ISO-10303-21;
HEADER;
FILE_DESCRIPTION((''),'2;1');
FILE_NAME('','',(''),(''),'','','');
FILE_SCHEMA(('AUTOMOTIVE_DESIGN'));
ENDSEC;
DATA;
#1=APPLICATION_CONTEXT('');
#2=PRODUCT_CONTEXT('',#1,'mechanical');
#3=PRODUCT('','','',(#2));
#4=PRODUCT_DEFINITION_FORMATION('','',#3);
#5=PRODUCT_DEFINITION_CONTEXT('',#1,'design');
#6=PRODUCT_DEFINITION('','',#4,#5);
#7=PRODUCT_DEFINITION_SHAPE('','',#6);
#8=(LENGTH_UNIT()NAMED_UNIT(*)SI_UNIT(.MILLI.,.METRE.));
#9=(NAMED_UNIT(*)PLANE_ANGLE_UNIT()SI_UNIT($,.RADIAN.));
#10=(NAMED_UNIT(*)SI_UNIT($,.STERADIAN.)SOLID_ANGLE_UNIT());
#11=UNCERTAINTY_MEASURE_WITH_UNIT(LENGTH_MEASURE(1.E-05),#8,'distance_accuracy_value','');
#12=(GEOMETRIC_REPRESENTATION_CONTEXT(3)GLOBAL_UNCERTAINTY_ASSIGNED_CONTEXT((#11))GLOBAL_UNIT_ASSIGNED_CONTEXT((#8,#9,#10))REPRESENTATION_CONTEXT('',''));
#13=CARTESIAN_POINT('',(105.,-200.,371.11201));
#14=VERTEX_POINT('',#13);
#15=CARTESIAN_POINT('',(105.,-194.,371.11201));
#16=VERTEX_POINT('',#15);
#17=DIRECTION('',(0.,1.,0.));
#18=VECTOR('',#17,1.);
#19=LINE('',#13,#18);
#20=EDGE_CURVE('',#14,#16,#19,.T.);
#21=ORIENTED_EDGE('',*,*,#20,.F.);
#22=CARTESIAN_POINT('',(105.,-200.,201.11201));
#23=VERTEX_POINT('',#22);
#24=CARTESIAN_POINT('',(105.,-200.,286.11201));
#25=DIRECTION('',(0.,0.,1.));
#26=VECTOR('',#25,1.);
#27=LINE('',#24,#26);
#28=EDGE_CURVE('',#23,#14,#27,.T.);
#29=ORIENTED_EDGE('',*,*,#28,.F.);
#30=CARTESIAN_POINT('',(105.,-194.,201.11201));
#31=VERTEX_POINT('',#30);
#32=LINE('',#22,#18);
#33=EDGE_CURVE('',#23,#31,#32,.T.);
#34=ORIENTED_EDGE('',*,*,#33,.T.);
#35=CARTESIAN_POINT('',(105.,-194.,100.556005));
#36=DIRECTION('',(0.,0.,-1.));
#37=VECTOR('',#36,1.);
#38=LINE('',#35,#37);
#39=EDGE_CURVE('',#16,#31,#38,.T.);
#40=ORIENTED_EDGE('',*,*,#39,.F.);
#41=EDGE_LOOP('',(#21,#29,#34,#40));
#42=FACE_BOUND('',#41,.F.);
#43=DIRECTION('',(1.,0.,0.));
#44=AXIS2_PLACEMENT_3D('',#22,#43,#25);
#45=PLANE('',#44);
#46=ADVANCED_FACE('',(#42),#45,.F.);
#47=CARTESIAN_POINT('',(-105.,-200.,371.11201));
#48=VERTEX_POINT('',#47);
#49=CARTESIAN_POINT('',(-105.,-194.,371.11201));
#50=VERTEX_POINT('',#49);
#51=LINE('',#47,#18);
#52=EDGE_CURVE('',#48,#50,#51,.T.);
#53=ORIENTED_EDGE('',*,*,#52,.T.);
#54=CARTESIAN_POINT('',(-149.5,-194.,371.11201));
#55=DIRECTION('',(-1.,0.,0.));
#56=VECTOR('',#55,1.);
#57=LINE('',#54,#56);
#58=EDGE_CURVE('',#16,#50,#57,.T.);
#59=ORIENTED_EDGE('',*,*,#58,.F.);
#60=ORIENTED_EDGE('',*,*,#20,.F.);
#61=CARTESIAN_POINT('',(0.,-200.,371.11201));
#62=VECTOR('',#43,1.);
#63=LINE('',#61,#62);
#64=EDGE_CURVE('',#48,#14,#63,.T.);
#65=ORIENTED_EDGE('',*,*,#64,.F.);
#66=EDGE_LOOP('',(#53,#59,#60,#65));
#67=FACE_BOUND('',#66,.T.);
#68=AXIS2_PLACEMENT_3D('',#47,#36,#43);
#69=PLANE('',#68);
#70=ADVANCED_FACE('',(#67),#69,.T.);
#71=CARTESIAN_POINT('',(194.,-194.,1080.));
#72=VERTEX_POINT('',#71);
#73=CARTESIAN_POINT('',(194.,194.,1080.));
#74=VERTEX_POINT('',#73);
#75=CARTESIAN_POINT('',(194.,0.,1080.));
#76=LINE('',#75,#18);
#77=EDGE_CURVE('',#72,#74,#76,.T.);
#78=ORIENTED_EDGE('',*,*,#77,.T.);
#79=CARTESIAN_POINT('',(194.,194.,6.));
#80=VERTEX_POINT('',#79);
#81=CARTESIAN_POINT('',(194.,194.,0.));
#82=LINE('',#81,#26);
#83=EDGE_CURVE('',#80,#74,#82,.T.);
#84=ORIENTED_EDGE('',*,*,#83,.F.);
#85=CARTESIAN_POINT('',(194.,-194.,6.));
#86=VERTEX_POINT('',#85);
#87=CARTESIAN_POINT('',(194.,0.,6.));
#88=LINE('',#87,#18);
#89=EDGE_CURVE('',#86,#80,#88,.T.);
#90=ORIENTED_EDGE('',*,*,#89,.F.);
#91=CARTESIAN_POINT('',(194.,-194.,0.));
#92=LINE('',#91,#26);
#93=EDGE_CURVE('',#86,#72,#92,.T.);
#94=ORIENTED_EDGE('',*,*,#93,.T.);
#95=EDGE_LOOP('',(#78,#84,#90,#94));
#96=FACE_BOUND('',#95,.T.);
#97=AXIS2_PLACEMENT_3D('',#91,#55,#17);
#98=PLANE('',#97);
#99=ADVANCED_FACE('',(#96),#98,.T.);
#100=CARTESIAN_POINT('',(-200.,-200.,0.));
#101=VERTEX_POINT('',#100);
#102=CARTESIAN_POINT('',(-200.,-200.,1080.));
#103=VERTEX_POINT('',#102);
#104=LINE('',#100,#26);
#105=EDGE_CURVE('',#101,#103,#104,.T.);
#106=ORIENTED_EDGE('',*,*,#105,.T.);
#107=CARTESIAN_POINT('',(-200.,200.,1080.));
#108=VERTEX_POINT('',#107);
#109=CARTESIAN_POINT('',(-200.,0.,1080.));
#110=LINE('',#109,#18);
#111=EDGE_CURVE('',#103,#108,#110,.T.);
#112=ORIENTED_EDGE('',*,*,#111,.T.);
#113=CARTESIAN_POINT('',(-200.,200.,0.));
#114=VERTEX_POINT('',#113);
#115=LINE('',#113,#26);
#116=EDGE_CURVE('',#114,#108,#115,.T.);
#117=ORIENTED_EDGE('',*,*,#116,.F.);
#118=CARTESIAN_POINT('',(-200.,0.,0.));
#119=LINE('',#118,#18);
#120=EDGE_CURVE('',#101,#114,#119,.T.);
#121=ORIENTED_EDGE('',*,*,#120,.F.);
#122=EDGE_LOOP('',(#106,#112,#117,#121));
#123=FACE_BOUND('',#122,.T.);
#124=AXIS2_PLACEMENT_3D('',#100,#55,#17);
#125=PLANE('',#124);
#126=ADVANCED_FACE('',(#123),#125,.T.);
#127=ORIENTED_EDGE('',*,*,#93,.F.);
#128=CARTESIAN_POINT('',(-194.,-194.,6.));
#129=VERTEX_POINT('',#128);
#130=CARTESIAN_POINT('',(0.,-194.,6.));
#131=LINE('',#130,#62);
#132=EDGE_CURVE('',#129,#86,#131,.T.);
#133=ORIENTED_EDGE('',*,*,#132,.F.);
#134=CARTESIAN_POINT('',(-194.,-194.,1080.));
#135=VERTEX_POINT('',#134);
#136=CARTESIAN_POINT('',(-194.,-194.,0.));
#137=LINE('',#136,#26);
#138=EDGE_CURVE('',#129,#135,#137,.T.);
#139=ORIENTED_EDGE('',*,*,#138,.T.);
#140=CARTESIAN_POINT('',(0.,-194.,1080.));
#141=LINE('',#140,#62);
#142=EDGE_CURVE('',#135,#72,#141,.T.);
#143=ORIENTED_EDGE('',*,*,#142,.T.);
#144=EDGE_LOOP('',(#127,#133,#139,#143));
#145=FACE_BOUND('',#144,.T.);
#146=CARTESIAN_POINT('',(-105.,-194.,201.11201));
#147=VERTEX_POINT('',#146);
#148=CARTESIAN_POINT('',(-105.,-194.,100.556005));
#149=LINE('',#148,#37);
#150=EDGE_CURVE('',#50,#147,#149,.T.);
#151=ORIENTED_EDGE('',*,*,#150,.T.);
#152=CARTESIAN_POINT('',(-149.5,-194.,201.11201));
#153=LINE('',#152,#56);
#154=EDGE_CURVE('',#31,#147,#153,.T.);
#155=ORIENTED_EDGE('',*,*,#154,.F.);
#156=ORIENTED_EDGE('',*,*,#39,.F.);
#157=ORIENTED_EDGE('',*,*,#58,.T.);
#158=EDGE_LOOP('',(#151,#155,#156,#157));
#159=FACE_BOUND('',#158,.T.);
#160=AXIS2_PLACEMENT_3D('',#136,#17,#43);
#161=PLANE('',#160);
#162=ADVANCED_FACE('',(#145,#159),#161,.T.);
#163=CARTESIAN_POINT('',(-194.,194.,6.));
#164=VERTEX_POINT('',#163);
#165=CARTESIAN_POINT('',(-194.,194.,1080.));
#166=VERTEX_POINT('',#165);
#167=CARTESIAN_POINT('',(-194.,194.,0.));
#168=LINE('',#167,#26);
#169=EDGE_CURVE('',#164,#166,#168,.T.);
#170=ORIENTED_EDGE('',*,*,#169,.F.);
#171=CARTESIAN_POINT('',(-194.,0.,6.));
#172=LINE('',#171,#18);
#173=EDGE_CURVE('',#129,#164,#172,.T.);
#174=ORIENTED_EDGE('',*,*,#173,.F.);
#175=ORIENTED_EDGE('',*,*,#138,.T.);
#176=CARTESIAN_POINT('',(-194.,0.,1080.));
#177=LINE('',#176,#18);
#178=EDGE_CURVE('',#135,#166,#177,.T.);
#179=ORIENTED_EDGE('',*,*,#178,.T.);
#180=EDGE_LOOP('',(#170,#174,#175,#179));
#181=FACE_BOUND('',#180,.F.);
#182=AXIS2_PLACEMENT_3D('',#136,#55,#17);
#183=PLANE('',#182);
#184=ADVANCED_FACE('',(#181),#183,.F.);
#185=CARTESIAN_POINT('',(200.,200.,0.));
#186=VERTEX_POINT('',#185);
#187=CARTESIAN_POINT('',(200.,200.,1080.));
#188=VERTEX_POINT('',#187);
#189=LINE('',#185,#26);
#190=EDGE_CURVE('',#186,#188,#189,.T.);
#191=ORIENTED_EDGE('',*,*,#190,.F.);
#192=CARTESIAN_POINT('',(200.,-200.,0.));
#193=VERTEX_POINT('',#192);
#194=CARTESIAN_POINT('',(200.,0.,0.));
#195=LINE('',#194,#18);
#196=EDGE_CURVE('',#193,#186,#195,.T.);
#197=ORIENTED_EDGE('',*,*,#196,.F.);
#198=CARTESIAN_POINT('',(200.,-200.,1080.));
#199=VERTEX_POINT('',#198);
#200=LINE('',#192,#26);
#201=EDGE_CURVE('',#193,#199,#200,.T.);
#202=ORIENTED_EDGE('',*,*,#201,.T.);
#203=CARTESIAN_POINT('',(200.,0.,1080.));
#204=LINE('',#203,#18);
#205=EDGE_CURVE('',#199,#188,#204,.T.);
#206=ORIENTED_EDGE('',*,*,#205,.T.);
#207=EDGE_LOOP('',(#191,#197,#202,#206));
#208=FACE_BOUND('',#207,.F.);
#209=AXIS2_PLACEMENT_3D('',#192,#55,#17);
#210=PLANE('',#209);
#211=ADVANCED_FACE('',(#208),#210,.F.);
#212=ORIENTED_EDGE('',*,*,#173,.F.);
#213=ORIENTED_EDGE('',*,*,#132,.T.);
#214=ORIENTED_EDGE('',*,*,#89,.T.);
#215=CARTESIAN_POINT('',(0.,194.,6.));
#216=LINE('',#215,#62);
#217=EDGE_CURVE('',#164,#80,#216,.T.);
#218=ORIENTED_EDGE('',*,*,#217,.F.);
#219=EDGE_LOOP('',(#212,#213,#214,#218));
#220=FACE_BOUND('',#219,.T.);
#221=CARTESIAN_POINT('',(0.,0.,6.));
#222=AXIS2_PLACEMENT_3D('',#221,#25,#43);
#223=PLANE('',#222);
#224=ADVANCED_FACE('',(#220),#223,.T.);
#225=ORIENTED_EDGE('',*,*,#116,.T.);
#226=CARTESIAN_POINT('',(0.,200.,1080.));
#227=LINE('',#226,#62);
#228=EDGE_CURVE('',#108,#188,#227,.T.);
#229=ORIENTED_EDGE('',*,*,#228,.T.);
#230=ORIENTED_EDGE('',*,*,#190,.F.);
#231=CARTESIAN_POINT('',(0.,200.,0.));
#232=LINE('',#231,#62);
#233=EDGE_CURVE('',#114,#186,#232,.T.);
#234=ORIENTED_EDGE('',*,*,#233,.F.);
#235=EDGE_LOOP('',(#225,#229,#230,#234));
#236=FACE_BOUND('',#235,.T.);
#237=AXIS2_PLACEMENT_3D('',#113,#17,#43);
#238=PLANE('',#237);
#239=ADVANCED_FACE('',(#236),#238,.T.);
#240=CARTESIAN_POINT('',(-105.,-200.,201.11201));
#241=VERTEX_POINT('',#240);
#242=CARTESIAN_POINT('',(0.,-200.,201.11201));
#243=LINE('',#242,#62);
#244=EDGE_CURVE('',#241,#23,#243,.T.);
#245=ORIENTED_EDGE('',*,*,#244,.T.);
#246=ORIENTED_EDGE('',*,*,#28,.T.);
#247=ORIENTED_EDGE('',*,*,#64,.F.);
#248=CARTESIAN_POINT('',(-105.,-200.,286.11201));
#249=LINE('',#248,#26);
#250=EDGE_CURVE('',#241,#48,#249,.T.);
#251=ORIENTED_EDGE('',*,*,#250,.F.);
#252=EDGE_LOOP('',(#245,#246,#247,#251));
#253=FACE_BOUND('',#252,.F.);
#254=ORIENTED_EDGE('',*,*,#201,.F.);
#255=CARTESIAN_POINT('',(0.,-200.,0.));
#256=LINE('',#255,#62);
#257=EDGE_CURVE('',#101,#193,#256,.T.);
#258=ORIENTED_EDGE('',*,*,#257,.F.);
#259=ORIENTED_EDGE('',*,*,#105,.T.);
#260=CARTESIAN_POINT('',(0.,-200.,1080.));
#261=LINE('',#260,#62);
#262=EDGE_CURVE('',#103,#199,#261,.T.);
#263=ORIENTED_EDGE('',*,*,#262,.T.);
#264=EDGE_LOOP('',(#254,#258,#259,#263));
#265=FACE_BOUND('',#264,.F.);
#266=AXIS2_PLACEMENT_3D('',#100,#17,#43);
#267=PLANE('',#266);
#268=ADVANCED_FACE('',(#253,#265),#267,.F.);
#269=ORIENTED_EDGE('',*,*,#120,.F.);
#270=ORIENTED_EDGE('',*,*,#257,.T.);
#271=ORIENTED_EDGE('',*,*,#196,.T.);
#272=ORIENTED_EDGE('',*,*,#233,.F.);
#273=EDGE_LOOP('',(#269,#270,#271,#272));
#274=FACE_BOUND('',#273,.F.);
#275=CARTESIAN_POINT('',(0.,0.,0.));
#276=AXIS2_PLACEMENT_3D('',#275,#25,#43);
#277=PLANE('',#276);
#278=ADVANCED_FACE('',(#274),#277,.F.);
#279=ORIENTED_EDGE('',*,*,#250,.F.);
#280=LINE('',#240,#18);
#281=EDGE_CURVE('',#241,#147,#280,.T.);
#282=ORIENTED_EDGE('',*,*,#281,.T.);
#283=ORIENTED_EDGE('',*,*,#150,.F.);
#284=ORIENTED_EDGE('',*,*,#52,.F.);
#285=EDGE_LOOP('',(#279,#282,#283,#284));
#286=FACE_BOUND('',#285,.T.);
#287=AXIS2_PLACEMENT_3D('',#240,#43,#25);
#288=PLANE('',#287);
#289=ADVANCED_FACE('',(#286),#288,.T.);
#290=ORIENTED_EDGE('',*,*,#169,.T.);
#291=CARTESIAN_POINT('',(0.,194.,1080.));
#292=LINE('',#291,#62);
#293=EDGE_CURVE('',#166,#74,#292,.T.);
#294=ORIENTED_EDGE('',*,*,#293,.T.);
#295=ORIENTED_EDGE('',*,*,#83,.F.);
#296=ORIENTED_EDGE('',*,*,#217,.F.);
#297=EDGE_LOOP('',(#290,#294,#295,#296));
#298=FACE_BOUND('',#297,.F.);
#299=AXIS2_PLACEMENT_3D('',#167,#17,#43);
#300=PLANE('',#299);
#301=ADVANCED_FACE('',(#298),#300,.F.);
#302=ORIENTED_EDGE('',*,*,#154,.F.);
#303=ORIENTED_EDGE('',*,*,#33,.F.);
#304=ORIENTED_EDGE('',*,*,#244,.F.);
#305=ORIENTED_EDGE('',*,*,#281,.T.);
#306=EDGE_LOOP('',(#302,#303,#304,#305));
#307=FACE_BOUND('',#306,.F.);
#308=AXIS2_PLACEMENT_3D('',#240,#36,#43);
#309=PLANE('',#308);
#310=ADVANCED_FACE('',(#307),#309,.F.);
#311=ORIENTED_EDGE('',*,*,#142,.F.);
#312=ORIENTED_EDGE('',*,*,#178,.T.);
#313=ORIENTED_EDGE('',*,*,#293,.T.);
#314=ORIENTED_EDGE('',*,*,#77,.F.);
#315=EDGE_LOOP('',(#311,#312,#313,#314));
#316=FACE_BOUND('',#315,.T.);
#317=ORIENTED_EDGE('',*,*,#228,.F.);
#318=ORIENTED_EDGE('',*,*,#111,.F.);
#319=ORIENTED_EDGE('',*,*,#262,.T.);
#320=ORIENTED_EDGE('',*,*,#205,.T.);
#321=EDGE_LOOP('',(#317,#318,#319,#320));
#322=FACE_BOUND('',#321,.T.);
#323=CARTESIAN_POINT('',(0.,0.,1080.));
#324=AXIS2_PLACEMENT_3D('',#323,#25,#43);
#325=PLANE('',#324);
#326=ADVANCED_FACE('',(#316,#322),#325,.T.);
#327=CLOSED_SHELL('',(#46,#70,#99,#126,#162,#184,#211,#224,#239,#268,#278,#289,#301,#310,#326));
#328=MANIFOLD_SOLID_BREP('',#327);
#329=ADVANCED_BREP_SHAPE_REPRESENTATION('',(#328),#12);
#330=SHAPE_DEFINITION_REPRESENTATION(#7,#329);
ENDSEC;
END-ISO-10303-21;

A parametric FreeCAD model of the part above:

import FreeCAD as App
import Part
import Sketcher
from FreeCAD import Vector

doc = App.newDocument("Part")
body = doc.addObject("PartDesign::Body", "Body")

# Sketch on XY plane
sketch1 = doc.addObject("Sketcher::SketchObject", "Sketch")
body.addObject(sketch1)
sketch1.AttachmentSupport = (doc.XY_Plane, [""])
sketch1.MapMode = "FlatFace"
sketch1.addGeometry(Part.LineSegment(Vector(-194, 194, 0), Vector(-194, -194, 0)), False)
sketch1.addGeometry(Part.LineSegment(Vector(-194, -194, 0), Vector(194, -194, 0)), False)
sketch1.addGeometry(Part.LineSegment(Vector(194, -194, 0), Vector(194, 194, 0)), False)
sketch1.addGeometry(Part.LineSegment(Vector(194, 194, 0), Vector(-194, 194, 0)), False)
sketch1.addConstraint(Sketcher.Constraint("Coincident", 0, 2, 1, 1))
sketch1.addConstraint(Sketcher.Constraint("Coincident", 1, 2, 2, 1))
sketch1.addConstraint(Sketcher.Constraint("Coincident", 2, 2, 3, 1))
sketch1.addConstraint(Sketcher.Constraint("Coincident", 3, 2, 0, 1))
sketch1.addConstraint(Sketcher.Constraint("Vertical", 0))
sketch1.addConstraint(Sketcher.Constraint("Horizontal", 1))
sketch1.addConstraint(Sketcher.Constraint("Vertical", 2))
sketch1.addConstraint(Sketcher.Constraint("Horizontal", 3))
sketch1.addConstraint(Sketcher.Constraint("Symmetric", 0, 2, 2, 2, -1, 1))
sketch1.addConstraint(Sketcher.Constraint("Equal", 3, 0))
sketch1.addConstraint(Sketcher.Constraint("DistanceX", 1, 1, 1, 2, 388.0))
pad1 = doc.addObject("PartDesign::Pad", "Pad")
body.addObject(pad1)
pad1.Profile = sketch1
pad1.Length = 6

# Sketch on XY plane
sketch2 = doc.addObject("Sketcher::SketchObject", "Sketch001")
body.addObject(sketch2)
sketch2.AttachmentSupport = (doc.XY_Plane, [""])
sketch2.MapMode = "FlatFace"
sketch2.addGeometry(Part.LineSegment(Vector(-200, 200, 0), Vector(-200, -200, 0)), False)
sketch2.addGeometry(Part.LineSegment(Vector(-200, -200, 0), Vector(200, -200, 0)), False)
sketch2.addGeometry(Part.LineSegment(Vector(200, -200, 0), Vector(200, 200, 0)), False)
sketch2.addGeometry(Part.LineSegment(Vector(200, 200, 0), Vector(-200, 200, 0)), False)
sketch2.addGeometry(Part.LineSegment(Vector(194, -194, 0), Vector(-194, -194, 0)), False)
sketch2.addGeometry(Part.LineSegment(Vector(-194, -194, 0), Vector(-194, 194, 0)), False)
sketch2.addGeometry(Part.LineSegment(Vector(-194, 194, 0), Vector(194, 194, 0)), False)
sketch2.addGeometry(Part.LineSegment(Vector(194, 194, 0), Vector(194, -194, 0)), False)
sketch2.addConstraint(Sketcher.Constraint("Coincident", 0, 2, 1, 1))
sketch2.addConstraint(Sketcher.Constraint("Coincident", 1, 2, 2, 1))
sketch2.addConstraint(Sketcher.Constraint("Coincident", 2, 2, 3, 1))
sketch2.addConstraint(Sketcher.Constraint("Coincident", 3, 2, 0, 1))
sketch2.addConstraint(Sketcher.Constraint("Coincident", 4, 2, 5, 1))
sketch2.addConstraint(Sketcher.Constraint("Coincident", 5, 2, 6, 1))
sketch2.addConstraint(Sketcher.Constraint("Coincident", 6, 2, 7, 1))
sketch2.addConstraint(Sketcher.Constraint("Coincident", 7, 2, 4, 1))
sketch2.addConstraint(Sketcher.Constraint("Vertical", 0))
sketch2.addConstraint(Sketcher.Constraint("Horizontal", 1))
sketch2.addConstraint(Sketcher.Constraint("Vertical", 2))
sketch2.addConstraint(Sketcher.Constraint("Horizontal", 3))
sketch2.addConstraint(Sketcher.Constraint("Horizontal", 4))
sketch2.addConstraint(Sketcher.Constraint("Vertical", 5))
sketch2.addConstraint(Sketcher.Constraint("Horizontal", 6))
sketch2.addConstraint(Sketcher.Constraint("Vertical", 7))
sketch2.addConstraint(Sketcher.Constraint("Symmetric", 0, 2, 2, 2, -1, 1))
sketch2.addConstraint(Sketcher.Constraint("Symmetric", 4, 2, 6, 2, -1, 1))
sketch2.addConstraint(Sketcher.Constraint("Equal", 3, 0))
sketch2.addConstraint(Sketcher.Constraint("Equal", 6, 5))
sketch2.addConstraint(Sketcher.Constraint("DistanceX", 1, 1, 1, 2, 400.0))
sketch2.addConstraint(Sketcher.Constraint("DistanceX", 4, 2, 4, 1, 388.0))
pad2 = doc.addObject("PartDesign::Pad", "Pad001")
body.addObject(pad2)
pad2.Profile = sketch2
pad2.Length = 1080

# Sketch on XZ plane
sketch3 = doc.addObject("Sketcher::SketchObject", "Sketch002")
body.addObject(sketch3)
sketch3.AttachmentSupport = (doc.XZ_Plane, [""])
sketch3.MapMode = "FlatFace"
sketch3.AttachmentOffset = App.Placement(Vector(0, 0, 200), App.Rotation())
sketch3.addGeometry(Part.LineSegment(Vector(-105, 371, 0), Vector(-105, 201, 0)), False)
sketch3.addGeometry(Part.LineSegment(Vector(-105, 201, 0), Vector(105, 201, 0)), False)
sketch3.addGeometry(Part.LineSegment(Vector(105, 201, 0), Vector(105, 371, 0)), False)
sketch3.addGeometry(Part.LineSegment(Vector(105, 371, 0), Vector(-105, 371, 0)), False)
sketch3.addConstraint(Sketcher.Constraint("Coincident", 0, 2, 1, 1))
sketch3.addConstraint(Sketcher.Constraint("Coincident", 1, 2, 2, 1))
sketch3.addConstraint(Sketcher.Constraint("Coincident", 2, 2, 3, 1))
sketch3.addConstraint(Sketcher.Constraint("Coincident", 3, 2, 0, 1))
sketch3.addConstraint(Sketcher.Constraint("Vertical", 0))
sketch3.addConstraint(Sketcher.Constraint("Horizontal", 1))
sketch3.addConstraint(Sketcher.Constraint("Vertical", 2))
sketch3.addConstraint(Sketcher.Constraint("Horizontal", 3))
sketch3.addConstraint(Sketcher.Constraint("DistanceX", 1, 1, 1, 2, 210.0))
sketch3.addConstraint(Sketcher.Constraint("DistanceY", 0, 2, 0, 1, 170.0))
sketch3.addConstraint(Sketcher.Constraint("DistanceX", 0, 2, -1, 1, 105.0))
sketch3.addConstraint(Sketcher.Constraint("DistanceY", -1, 1, 0, 2, 201.11201))
pocket1 = doc.addObject("PartDesign::Pocket", "Pocket")
body.addObject(pocket1)
pocket1.Profile = sketch3
pocket1.Length = 25

doc.recompute()
